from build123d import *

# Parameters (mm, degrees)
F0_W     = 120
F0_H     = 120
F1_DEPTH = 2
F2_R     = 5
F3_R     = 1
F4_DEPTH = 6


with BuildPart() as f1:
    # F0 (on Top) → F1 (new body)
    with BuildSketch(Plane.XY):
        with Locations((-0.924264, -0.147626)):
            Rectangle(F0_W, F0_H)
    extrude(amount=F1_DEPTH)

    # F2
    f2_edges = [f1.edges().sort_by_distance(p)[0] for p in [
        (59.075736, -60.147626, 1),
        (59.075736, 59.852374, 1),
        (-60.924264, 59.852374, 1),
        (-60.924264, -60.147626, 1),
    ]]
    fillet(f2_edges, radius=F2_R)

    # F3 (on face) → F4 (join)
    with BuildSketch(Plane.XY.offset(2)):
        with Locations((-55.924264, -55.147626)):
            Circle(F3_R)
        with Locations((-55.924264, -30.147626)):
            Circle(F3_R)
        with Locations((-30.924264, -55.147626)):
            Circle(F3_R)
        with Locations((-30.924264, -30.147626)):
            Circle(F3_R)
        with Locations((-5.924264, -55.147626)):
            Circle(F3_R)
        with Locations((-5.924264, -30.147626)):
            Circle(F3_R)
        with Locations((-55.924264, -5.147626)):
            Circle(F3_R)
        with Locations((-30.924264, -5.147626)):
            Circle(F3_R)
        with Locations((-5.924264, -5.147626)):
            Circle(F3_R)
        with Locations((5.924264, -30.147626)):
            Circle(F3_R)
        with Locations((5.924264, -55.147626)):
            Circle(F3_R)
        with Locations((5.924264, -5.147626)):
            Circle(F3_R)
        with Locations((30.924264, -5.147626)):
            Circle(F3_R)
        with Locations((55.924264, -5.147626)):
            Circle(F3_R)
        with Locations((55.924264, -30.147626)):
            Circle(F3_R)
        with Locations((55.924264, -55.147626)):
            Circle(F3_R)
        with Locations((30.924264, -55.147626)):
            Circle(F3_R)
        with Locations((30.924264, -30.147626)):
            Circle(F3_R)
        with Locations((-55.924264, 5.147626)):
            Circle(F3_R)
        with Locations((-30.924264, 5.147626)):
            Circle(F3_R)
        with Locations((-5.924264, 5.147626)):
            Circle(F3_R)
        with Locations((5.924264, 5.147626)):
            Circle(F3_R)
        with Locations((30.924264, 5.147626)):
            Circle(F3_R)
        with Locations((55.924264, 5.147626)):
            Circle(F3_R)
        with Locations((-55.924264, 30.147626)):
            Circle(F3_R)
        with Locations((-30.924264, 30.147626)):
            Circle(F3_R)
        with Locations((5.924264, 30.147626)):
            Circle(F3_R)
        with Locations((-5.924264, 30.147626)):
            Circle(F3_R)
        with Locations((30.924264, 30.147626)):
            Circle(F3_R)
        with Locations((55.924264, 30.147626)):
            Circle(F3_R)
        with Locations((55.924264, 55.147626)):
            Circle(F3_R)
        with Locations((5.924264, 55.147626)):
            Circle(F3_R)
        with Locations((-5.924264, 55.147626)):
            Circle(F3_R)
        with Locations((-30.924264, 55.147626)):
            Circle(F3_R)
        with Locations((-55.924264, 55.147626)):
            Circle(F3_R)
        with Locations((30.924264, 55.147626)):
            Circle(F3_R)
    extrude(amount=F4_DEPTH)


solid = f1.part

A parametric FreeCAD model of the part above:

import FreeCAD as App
import Part
import Sketcher


def edges_at(feature, points):
    """Names of the edges that pass closest to the given points."""
    edges = feature.Shape.Edges
    near = lambda p: min(range(len(edges)), key=lambda i: edges[i].distToShape(Part.Vertex(*p))[0])
    return sorted({f"Edge{near(p) + 1}" for p in points})


def add_polygon(sketch, points):
    """Adds a closed chain of lines whose ends are joined by coincident constraints."""
    first, n = sketch.GeometryCount, len(points)
    for a, b in zip(points, points[1:] + points[:1]):
        sketch.addGeometry(Part.LineSegment(App.Vector(*a, 0), App.Vector(*b, 0)), False)
    for i in range(n):
        sketch.addConstraint(Sketcher.Constraint("Coincident", first + i, 2, first + (i + 1) % n, 1))

doc = App.newDocument("Part")
body = doc.addObject("PartDesign::Body", "Body")

# Sketch on XY plane
sketch1 = doc.addObject("Sketcher::SketchObject", "Sketch")
body.addObject(sketch1)
sketch1.AttachmentSupport = (doc.XY_Plane, [""])
sketch1.MapMode = "FlatFace"
add_polygon(sketch1, [(-60.924264, 59.852374), (-60.924264, -60.147626), (59.075736, -60.147626), (59.075736, 59.852374)])  # lines 0-3
sketch1.addConstraint([
    Sketcher.Constraint("Vertical", 0),
    Sketcher.Constraint("Horizontal", 1),
    Sketcher.Constraint("Vertical", 2),
    Sketcher.Constraint("Horizontal", 3),
    Sketcher.Constraint("Equal", 3, 0),
    Sketcher.Constraint("DistanceX", 1, 1, 1, 2, 120.0),
    Sketcher.Constraint("DistanceX", 0, 2, -1, 1, 60.924264),
    Sketcher.Constraint("DistanceY", 0, 2, -1, 1, 60.147626),
])
pad1 = doc.addObject("PartDesign::Pad", "Pad")
body.addObject(pad1)
pad1.Profile = sketch1
pad1.Length = 2
doc.recompute()

fillet = doc.addObject("PartDesign::Fillet", "Fillet")
body.addObject(fillet)
fillet.Base = (pad1, edges_at(pad1, [
    (59.076, -60.148, 1),
    (59.076, 59.852, 1),
    (-60.924, 59.852, 1),
    (-60.924, -60.148, 1),
]))
fillet.Radius = 5

# Sketch on XY plane
sketch2 = doc.addObject("Sketcher::SketchObject", "Sketch001")
body.addObject(sketch2)
sketch2.AttachmentSupport = (doc.XY_Plane, [""])
sketch2.MapMode = "FlatFace"
sketch2.AttachmentOffset = App.Placement(App.Vector(0, 0, 2), App.Rotation())
sketch2.addGeometry([
    Part.Circle(App.Vector(-55.924264, -55.147626, 0), App.Vector(0, 0, 1), 1),  # 0
    Part.Circle(App.Vector(-55.924264, -30.147626, 0), App.Vector(0, 0, 1), 1),  # 1
    Part.Circle(App.Vector(-30.924264, -55.147626, 0), App.Vector(0, 0, 1), 1),  # 2
    Part.Circle(App.Vector(-30.924264, -30.147626, 0), App.Vector(0, 0, 1), 1),  # 3
    Part.Circle(App.Vector(-5.924264, -55.147626, 0), App.Vector(0, 0, 1), 1),  # 4
    Part.Circle(App.Vector(-5.924264, -30.147626, 0), App.Vector(0, 0, 1), 1),  # 5
    Part.Circle(App.Vector(-55.924264, -5.147626, 0), App.Vector(0, 0, 1), 1),  # 6
    Part.Circle(App.Vector(-30.924264, -5.147626, 0), App.Vector(0, 0, 1), 1),  # 7
    Part.Circle(App.Vector(-5.924264, -5.147626, 0), App.Vector(0, 0, 1), 1),  # 8
    Part.Circle(App.Vector(5.924264, -30.147626, 0), App.Vector(0, 0, 1), 1),  # 9
    Part.Circle(App.Vector(5.924264, -55.147626, 0), App.Vector(0, 0, 1), 1),  # 10
    Part.Circle(App.Vector(5.924264, -5.147626, 0), App.Vector(0, 0, 1), 1),  # 11
    Part.Circle(App.Vector(30.924264, -5.147626, 0), App.Vector(0, 0, 1), 1),  # 12
    Part.Circle(App.Vector(55.924264, -5.147626, 0), App.Vector(0, 0, 1), 1),  # 13
    Part.Circle(App.Vector(55.924264, -30.147626, 0), App.Vector(0, 0, 1), 1),  # 14
    Part.Circle(App.Vector(55.924264, -55.147626, 0), App.Vector(0, 0, 1), 1),  # 15
    Part.Circle(App.Vector(30.924264, -55.147626, 0), App.Vector(0, 0, 1), 1),  # 16
    Part.Circle(App.Vector(30.924264, -30.147626, 0), App.Vector(0, 0, 1), 1),  # 17
    Part.Circle(App.Vector(-55.924264, 5.147626, 0), App.Vector(0, 0, 1), 1),  # 18
    Part.Circle(App.Vector(-30.924264, 5.147626, 0), App.Vector(0, 0, 1), 1),  # 19
    Part.Circle(App.Vector(-5.924264, 5.147626, 0), App.Vector(0, 0, 1), 1),  # 20
    Part.Circle(App.Vector(5.924264, 5.147626, 0), App.Vector(0, 0, 1), 1),  # 21
    Part.Circle(App.Vector(30.924264, 5.147626, 0), App.Vector(0, 0, 1), 1),  # 22
    Part.Circle(App.Vector(55.924264, 5.147626, 0), App.Vector(0, 0, 1), 1),  # 23
    Part.Circle(App.Vector(-55.924264, 30.147626, 0), App.Vector(0, 0, 1), 1),  # 24
    Part.Circle(App.Vector(-30.924264, 30.147626, 0), App.Vector(0, 0, 1), 1),  # 25
    Part.Circle(App.Vector(5.924264, 30.147626, 0), App.Vector(0, 0, 1), 1),  # 26
    Part.Circle(App.Vector(-5.924264, 30.147626, 0), App.Vector(0, 0, 1), 1),  # 27
    Part.Circle(App.Vector(30.924264, 30.147626, 0), App.Vector(0, 0, 1), 1),  # 28
    Part.Circle(App.Vector(55.924264, 30.147626, 0), App.Vector(0, 0, 1), 1),  # 29
    Part.Circle(App.Vector(55.924264, 55.147626, 0), App.Vector(0, 0, 1), 1),  # 30
    Part.Circle(App.Vector(5.924264, 55.147626, 0), App.Vector(0, 0, 1), 1),  # 31
    Part.Circle(App.Vector(-5.924264, 55.147626, 0), App.Vector(0, 0, 1), 1),  # 32
    Part.Circle(App.Vector(-30.924264, 55.147626, 0), App.Vector(0, 0, 1), 1),  # 33
    Part.Circle(App.Vector(-55.924264, 55.147626, 0), App.Vector(0, 0, 1), 1),  # 34
    Part.Circle(App.Vector(30.924264, 55.147626, 0), App.Vector(0, 0, 1), 1),  # 35
], False)
sketch2.addConstraint([
    Sketcher.Constraint("Equal", 0, 1),
    Sketcher.Constraint("Equal", 1, 2),
    Sketcher.Constraint("Equal", 2, 3),
    Sketcher.Constraint("Equal", 3, 4),
    Sketcher.Constraint("Equal", 4, 5),
    Sketcher.Constraint("Equal", 5, 6),
    Sketcher.Constraint("Equal", 6, 7),
    Sketcher.Constraint("Equal", 7, 8),
    Sketcher.Constraint("Equal", 8, 9),
    Sketcher.Constraint("Equal", 9, 10),
    Sketcher.Constraint("Equal", 10, 11),
    Sketcher.Constraint("Equal", 11, 12),
    Sketcher.Constraint("Equal", 12, 13),
    Sketcher.Constraint("Equal", 13, 14),
    Sketcher.Constraint("Equal", 14, 15),
    Sketcher.Constraint("Equal", 15, 16),
    Sketcher.Constraint("Equal", 16, 17),
    Sketcher.Constraint("Equal", 17, 18),
    Sketcher.Constraint("Equal", 18, 19),
    Sketcher.Constraint("Equal", 19, 20),
    Sketcher.Constraint("Equal", 20, 21),
    Sketcher.Constraint("Equal", 21, 22),
    Sketcher.Constraint("Equal", 22, 23),
    Sketcher.Constraint("Equal", 23, 24),
    Sketcher.Constraint("Equal", 24, 25),
    Sketcher.Constraint("Equal", 25, 26),
    Sketcher.Constraint("Equal", 26, 27),
    Sketcher.Constraint("Equal", 27, 28),
    Sketcher.Constraint("Equal", 28, 29),
    Sketcher.Constraint("Equal", 29, 30),
    Sketcher.Constraint("Equal", 30, 31),
    Sketcher.Constraint("Equal", 31, 32),
    Sketcher.Constraint("Equal", 32, 33),
    Sketcher.Constraint("Equal", 33, 34),
    Sketcher.Constraint("Equal", 34, 35),
    Sketcher.Constraint("Symmetric", 13, 3, 18, 3, -1, 1),
    Sketcher.Constraint("Symmetric", 12, 3, 19, 3, -1, 1),
    Sketcher.Constraint("Symmetric", 11, 3, 20, 3, -1, 1),
    Sketcher.Constraint("Symmetric", 8, 3, 21, 3, -1, 1),
    Sketcher.Constraint("Symmetric", 7, 3, 22, 3, -1, 1),
    Sketcher.Constraint("Symmetric", 6, 3, 23, 3, -1, 1),
    Sketcher.Constraint("Symmetric", 14, 3, 24, 3, -1, 1),
    Sketcher.Constraint("Symmetric", 17, 3, 25, 3, -1, 1),
    Sketcher.Constraint("Symmetric", 5, 3, 26, 3, -1, 1),
    Sketcher.Constraint("Symmetric", 9, 3, 27, 3, -1, 1),
    Sketcher.Constraint("Symmetric", 3, 3, 28, 3, -1, 1),
    Sketcher.Constraint("Symmetric", 1, 3, 29, 3, -1, 1),
    Sketcher.Constraint("Symmetric", 0, 3, 30, 3, -1, 1),
    Sketcher.Constraint("Symmetric", 4, 3, 31, 3, -1, 1),
    Sketcher.Constraint("Symmetric", 10, 3, 32, 3, -1, 1),
    Sketcher.Constraint("Symmetric", 16, 3, 33, 3, -1, 1),
    Sketcher.Constraint("Symmetric", 15, 3, 34, 3, -1, 1),
    Sketcher.Constraint("Symmetric", 2, 3, 35, 3, -1, 1),
    Sketcher.Constraint("Symmetric", 5, 3, 9, 3, -2),
    Sketcher.Constraint("Symmetric", 4, 3, 10, 3, -2),
    Sketcher.Constraint("Symmetric", 8, 3, 11, 3, -2),
    Sketcher.Constraint("Symmetric", 7, 3, 12, 3, -2),
    Sketcher.Constraint("Symmetric", 6, 3, 13, 3, -2),
    Sketcher.Constraint("Symmetric", 1, 3, 14, 3, -2),
    Sketcher.Constraint("Symmetric", 0, 3, 15, 3, -2),
    Sketcher.Constraint("Symmetric", 2, 3, 16, 3, -2),
    Sketcher.Constraint("Symmetric", 3, 3, 17, 3, -2),
    Sketcher.Constraint("Horizontal", 0, 3, 2, 3),
    Sketcher.Constraint("Horizontal", 1, 3, 3, 3),
    Sketcher.Constraint("Horizontal", 2, 3, 4, 3),
    Sketcher.Constraint("Horizontal", 3, 3, 5, 3),
    Sketcher.Constraint("Horizontal", 6, 3, 7, 3),
    Sketcher.Constraint("Horizontal", 7, 3, 8, 3),
    Sketcher.Constraint("Vertical", 0, 3, 1, 3),
    Sketcher.Constraint("Vertical", 2, 3, 3, 3),
    Sketcher.Constraint("Vertical", 4, 3, 5, 3),
    Sketcher.Constraint("Vertical", 1, 3, 6, 3),
    Sketcher.Constraint("Vertical", 3, 3, 7, 3),
    Sketcher.Constraint("Vertical", 5, 3, 8, 3),
    Sketcher.Constraint("Diameter", 0, 2.0),
    Sketcher.Constraint("DistanceY", 0, 3, 1, 3, 25.0),
    Sketcher.Constraint("DistanceX", 0, 3, 2, 3, 25.0),
    Sketcher.Constraint("DistanceX", 2, 3, 4, 3, 25.0),
    Sketcher.Constraint("DistanceY", 1, 3, 6, 3, 25.0),
    Sketcher.Constraint("DistanceX", 3, 3, 9, 3, 36.848528),
    Sketcher.Constraint("DistanceY", 1, 3, 18, 3, 35.295252),
])
pad2 = doc.addObject("PartDesign::Pad", "Pad001")
body.addObject(pad2)
pad2.Profile = sketch2
pad2.Length = 6

doc.recompute()
